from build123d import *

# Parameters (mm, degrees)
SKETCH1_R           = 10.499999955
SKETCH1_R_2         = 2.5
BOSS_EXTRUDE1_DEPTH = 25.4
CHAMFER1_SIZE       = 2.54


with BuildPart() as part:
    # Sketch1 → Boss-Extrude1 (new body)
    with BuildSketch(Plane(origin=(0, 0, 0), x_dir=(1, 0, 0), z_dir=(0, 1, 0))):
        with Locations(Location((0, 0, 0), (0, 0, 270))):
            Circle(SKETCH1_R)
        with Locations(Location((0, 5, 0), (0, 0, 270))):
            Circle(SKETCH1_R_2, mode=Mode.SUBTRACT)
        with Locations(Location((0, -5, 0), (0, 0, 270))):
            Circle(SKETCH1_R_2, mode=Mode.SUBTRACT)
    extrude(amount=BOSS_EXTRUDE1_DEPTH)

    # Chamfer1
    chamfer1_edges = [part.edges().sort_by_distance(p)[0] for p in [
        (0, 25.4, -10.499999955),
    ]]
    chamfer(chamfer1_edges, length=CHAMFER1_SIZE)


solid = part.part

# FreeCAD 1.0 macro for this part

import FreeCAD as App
import Part
import Sketcher

V = App.Vector


def edges_at(feature, points):
    """Names of the edges that pass closest to the given points."""
    edges = feature.Shape.Edges
    near = lambda p: min(range(len(edges)), key=lambda i: edges[i].distToShape(Part.Vertex(*p))[0])
    return sorted({f"Edge{near(p) + 1}" for p in points})

doc = App.newDocument("Part")
body = doc.addObject("PartDesign::Body", "Body")

# Sketch on XZ plane
sketch1 = body.newObject("Sketcher::SketchObject", "Sketch")
sketch1.AttachmentSupport = (doc.getObject("XZ_Plane"), [""])
sketch1.MapMode = "FlatFace"
sketch1.addGeometry(Part.Circle(V(0, 0, 0), V(0, 0, 1), 10.5), False)
sketch1.addGeometry(Part.Circle(V(0, -5, 0), V(0, 0, 1), 2.5), False)
sketch1.addGeometry(Part.Circle(V(0, 5, 0), V(0, 0, 1), 2.5), False)
sketch1.addConstraint(Sketcher.Constraint("Coincident", 0, 3, -1, 1))
sketch1.addConstraint(Sketcher.Constraint("Equal", 1, 2))
sketch1.addConstraint(Sketcher.Constraint("Symmetric", 1, 3, 2, 3, -1, 1))
sketch1.addConstraint(Sketcher.Constraint("PointOnObject", 1, 3, -2))
sketch1.addConstraint(Sketcher.Constraint("Diameter", 0, 21.0))
sketch1.addConstraint(Sketcher.Constraint("Diameter", 1, 5.0))
sketch1.addConstraint(Sketcher.Constraint("DistanceY", 1, 3, -1, 1, 5.0))
pad1 = body.newObject("PartDesign::Pad", "Pad")
pad1.Profile = sketch1
pad1.Length = 25.4
pad1.Reversed = True
doc.recompute()

chamfer = body.newObject("PartDesign::Chamfer", "Chamfer")
chamfer.Base = (pad1, edges_at(pad1, [(0, 25.4, -10.5)]))
chamfer.Size = 2.54

doc.recompute()
